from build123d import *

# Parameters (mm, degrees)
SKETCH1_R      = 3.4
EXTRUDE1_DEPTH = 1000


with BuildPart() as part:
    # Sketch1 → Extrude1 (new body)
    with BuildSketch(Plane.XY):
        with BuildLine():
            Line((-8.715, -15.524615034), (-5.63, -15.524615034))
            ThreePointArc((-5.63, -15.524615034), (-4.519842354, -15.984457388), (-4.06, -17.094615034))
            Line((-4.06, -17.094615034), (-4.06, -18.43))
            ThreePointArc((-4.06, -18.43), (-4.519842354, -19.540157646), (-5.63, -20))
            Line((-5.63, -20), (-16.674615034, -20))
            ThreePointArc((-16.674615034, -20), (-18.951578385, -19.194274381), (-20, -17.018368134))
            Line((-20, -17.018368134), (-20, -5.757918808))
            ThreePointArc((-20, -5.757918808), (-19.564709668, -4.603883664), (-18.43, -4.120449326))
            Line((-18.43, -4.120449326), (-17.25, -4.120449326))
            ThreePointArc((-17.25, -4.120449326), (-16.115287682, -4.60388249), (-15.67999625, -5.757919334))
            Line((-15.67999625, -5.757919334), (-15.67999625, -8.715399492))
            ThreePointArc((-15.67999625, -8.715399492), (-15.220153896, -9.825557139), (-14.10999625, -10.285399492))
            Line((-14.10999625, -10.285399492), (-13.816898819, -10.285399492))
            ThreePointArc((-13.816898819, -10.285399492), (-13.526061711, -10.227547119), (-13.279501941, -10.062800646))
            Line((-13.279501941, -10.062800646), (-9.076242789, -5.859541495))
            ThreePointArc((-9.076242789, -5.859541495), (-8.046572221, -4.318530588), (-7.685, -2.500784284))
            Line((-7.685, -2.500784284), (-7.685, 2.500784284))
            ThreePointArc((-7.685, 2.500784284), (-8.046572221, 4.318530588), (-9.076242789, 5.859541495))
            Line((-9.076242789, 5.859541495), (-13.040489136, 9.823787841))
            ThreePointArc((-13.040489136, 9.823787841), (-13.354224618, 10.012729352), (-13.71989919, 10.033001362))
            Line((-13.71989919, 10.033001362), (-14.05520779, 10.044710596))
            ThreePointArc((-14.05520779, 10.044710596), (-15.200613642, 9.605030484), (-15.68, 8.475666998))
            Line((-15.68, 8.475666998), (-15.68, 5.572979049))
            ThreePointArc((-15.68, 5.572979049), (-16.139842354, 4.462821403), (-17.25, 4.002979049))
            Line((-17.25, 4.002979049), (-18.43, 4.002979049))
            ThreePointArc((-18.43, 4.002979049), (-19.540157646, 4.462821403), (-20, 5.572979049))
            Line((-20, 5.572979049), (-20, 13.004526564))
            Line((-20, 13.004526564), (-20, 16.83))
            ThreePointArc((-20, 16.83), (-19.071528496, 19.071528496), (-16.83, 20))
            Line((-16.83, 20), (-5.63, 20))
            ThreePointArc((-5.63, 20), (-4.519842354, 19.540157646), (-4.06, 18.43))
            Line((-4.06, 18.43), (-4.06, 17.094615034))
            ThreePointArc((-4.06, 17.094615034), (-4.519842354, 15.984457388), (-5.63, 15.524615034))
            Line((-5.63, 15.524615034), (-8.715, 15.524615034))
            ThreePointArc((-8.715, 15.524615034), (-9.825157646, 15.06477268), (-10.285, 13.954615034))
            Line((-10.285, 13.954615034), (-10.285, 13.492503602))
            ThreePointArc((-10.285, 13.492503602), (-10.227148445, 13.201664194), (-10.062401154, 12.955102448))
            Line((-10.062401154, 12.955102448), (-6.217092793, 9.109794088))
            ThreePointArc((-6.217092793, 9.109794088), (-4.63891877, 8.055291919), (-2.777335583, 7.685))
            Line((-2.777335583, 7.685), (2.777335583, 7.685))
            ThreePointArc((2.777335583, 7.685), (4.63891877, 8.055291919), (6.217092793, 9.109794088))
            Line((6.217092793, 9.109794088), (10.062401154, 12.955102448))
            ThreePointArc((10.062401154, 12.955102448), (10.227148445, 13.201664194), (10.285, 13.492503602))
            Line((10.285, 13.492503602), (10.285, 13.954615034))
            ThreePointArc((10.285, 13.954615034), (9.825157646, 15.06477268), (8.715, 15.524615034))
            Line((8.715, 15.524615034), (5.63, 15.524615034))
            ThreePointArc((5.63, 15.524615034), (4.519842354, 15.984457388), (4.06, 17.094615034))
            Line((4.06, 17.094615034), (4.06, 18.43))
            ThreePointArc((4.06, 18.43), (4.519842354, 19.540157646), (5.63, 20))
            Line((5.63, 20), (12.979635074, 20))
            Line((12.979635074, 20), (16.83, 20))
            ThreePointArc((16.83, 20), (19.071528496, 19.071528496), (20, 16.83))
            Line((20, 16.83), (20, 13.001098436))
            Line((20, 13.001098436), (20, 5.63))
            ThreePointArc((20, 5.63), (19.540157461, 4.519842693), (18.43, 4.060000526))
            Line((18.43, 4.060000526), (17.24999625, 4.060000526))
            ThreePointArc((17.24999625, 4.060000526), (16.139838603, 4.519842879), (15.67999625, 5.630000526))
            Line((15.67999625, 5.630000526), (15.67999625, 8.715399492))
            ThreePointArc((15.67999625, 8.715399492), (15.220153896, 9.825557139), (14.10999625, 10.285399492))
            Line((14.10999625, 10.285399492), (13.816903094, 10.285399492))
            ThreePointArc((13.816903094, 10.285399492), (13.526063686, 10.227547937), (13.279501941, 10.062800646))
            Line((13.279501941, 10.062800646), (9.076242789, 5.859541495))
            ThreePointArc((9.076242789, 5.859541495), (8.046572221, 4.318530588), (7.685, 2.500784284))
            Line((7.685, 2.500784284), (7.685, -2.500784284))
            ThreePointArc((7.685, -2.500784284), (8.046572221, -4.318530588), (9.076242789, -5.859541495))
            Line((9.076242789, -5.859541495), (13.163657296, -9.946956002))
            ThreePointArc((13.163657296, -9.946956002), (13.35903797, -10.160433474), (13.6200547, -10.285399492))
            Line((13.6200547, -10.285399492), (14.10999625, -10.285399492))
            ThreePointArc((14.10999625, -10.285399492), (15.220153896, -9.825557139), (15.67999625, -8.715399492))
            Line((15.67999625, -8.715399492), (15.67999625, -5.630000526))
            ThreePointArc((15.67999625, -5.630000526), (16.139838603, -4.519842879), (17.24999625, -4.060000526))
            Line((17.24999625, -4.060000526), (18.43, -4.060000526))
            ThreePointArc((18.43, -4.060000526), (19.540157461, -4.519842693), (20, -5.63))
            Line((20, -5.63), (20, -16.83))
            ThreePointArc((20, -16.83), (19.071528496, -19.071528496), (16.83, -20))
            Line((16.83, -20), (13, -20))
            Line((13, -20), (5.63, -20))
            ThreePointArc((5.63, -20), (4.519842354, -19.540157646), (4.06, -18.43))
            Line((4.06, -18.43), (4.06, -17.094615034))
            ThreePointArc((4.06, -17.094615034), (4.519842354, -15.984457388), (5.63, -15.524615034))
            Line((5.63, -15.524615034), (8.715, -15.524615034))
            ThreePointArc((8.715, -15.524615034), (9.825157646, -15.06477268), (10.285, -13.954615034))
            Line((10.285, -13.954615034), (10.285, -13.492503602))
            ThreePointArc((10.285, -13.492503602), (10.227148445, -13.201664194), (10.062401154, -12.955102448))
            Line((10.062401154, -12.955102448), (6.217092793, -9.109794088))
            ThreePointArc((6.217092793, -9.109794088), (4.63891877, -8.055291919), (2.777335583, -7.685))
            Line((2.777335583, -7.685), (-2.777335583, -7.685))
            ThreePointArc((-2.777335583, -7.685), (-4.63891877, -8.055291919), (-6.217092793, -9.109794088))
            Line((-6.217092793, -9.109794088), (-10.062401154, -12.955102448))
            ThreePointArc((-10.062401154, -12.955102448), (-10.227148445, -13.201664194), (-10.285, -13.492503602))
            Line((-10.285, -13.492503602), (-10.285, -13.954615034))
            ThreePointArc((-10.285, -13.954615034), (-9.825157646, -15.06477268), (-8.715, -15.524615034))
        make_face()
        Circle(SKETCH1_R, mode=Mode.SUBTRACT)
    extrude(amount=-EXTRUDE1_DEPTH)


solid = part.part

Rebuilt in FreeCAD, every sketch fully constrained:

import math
import FreeCAD as App
import Part
import Sketcher

V = App.Vector
Q = App.Units.Quantity

doc = App.newDocument("Part")
body = doc.addObject("PartDesign::Body", "Body")

# Sketch on XY plane
sketch1 = body.newObject("Sketcher::SketchObject", "Sketch")
sketch1.AttachmentSupport = (doc.getObject("XY_Plane"), [""])
sketch1.MapMode = "FlatFace"
sketch1.addGeometry(Part.LineSegment(V(-5.63, -15.524615, 0), V(-8.715, -15.524615, 0)), False)
sketch1.addGeometry(Part.ArcOfCircle(Part.Circle(V(-8.715, -13.954615, 0), V(0, 0, 1), 1.57), math.radians(-180), math.radians(-90)), False)
sketch1.addGeometry(Part.LineSegment(V(-10.285, -13.954615, 0), V(-10.285, -13.492504, 0)), False)
sketch1.addGeometry(Part.ArcOfCircle(Part.Circle(V(-9.525, -13.492504, 0), V(0, 0, 1), 0.76), math.radians(135), math.radians(180)), False)
sketch1.addGeometry(Part.LineSegment(V(-10.062401, -12.955102, 0), V(-6.217093, -9.109794, 0)), False)
sketch1.addGeometry(Part.ArcOfCircle(Part.Circle(V(-2.777336, -12.549551, 0), V(0, 0, 1), 4.864551), math.radians(90), math.radians(135)), False)
sketch1.addGeometry(Part.LineSegment(V(-2.777336, -7.685, 0), V(2.777336, -7.685, 0)), False)
sketch1.addGeometry(Part.ArcOfCircle(Part.Circle(V(2.777336, -12.549551, 0), V(0, 0, 1), 4.864551), math.radians(45), math.radians(90)), False)
sketch1.addGeometry(Part.LineSegment(V(6.217093, -9.109794, 0), V(10.062401, -12.955102, 0)), False)
sketch1.addGeometry(Part.ArcOfCircle(Part.Circle(V(9.525, -13.492504, 0), V(0, 0, 1), 0.76), math.radians(0), math.radians(45)), False)
sketch1.addGeometry(Part.LineSegment(V(10.285, -13.492504, 0), V(10.285, -13.954615, 0)), False)
sketch1.addGeometry(Part.ArcOfCircle(Part.Circle(V(8.715, -13.954615, 0), V(0, 0, 1), 1.57), math.radians(-90), math.radians(0)), False)
sketch1.addGeometry(Part.LineSegment(V(8.715, -15.524615, 0), V(5.63, -15.524615, 0)), False)
sketch1.addGeometry(Part.ArcOfCircle(Part.Circle(V(5.63, -17.094615, 0), V(0, 0, 1), 1.57), math.radians(90), math.radians(180)), False)
sketch1.addGeometry(Part.LineSegment(V(4.06, -17.094615, 0), V(4.06, -18.43, 0)), False)
sketch1.addGeometry(Part.ArcOfCircle(Part.Circle(V(5.63, -18.43, 0), V(0, 0, 1), 1.57), math.radians(-180), math.radians(-90)), False)
sketch1.addGeometry(Part.LineSegment(V(5.63, -20, 0), V(16.83, -20, 0)), False)
sketch1.addGeometry(Part.ArcOfCircle(Part.Circle(V(16.83, -16.83, 0), V(0, 0, 1), 3.17), math.radians(-90), math.radians(0)), False)
sketch1.addGeometry(Part.LineSegment(V(20, -16.83, 0), V(20, -5.63, 0)), False)
sketch1.addGeometry(Part.ArcOfCircle(Part.Circle(V(18.43, -5.630001, 0), V(0, 0, 1), 1.57), math.radians(0.000019), math.radians(90)), False)
sketch1.addGeometry(Part.LineSegment(V(18.43, -4.060001, 0), V(17.249996, -4.060001, 0)), False)
sketch1.addGeometry(Part.ArcOfCircle(Part.Circle(V(17.249996, -5.630001, 0), V(0, 0, 1), 1.57), math.radians(90), math.radians(180)), False)
sketch1.addGeometry(Part.LineSegment(V(15.679996, -5.630001, 0), V(15.679996, -8.715399, 0)), False)
sketch1.addGeometry(Part.ArcOfCircle(Part.Circle(V(14.109996, -8.715399, 0), V(0, 0, 1), 1.57), math.radians(-90), math.radians(0)), False)
sketch1.addGeometry(Part.LineSegment(V(14.109996, -10.285399, 0), V(13.620055, -10.285399, 0)), False)
sketch1.addGeometry(Part.ArcOfCircle(Part.Circle(V(13.811732, -9.549968, 0), V(0, 0, 1), 0.76), math.radians(-148.509776), math.radians(-104.608114)), False)
sketch1.addGeometry(Part.LineSegment(V(13.163657, -9.946956, 0), V(9.076243, -5.859541, 0)), False)
sketch1.addGeometry(Part.ArcOfCircle(Part.Circle(V(12.435, -2.500784, 0), V(0, 0, 1), 4.75), math.radians(-180), math.radians(-135)), False)
sketch1.addGeometry(Part.LineSegment(V(7.685, -2.500784, 0), V(7.685, 2.500784, 0)), False)
sketch1.addGeometry(Part.ArcOfCircle(Part.Circle(V(12.435, 2.500784, 0), V(0, 0, 1), 4.75), math.radians(135), math.radians(180)), False)
sketch1.addGeometry(Part.LineSegment(V(9.076243, 5.859541, 0), V(13.279502, 10.062801, 0)), False)
sketch1.addGeometry(Part.ArcOfCircle(Part.Circle(V(13.816903, 9.525399, 0), V(0, 0, 1), 0.76), math.radians(90), math.radians(135)), False)
sketch1.addGeometry(Part.LineSegment(V(13.816903, 10.285399, 0), V(14.109996, 10.285399, 0)), False)
sketch1.addGeometry(Part.ArcOfCircle(Part.Circle(V(14.109996, 8.715399, 0), V(0, 0, 1), 1.57), math.radians(0), math.radians(90)), False)
sketch1.addGeometry(Part.LineSegment(V(15.679996, 8.715399, 0), V(15.679996, 5.630001, 0)), False)
sketch1.addGeometry(Part.ArcOfCircle(Part.Circle(V(17.249996, 5.630001, 0), V(0, 0, 1), 1.57), math.radians(180), math.radians(270)), False)
sketch1.addGeometry(Part.LineSegment(V(17.249996, 4.060001, 0), V(18.43, 4.060001, 0)), False)
sketch1.addGeometry(Part.ArcOfCircle(Part.Circle(V(18.43, 5.630001, 0), V(0, 0, 1), 1.57), math.radians(-90), math.radians(-0.000019)), False)
sketch1.addGeometry(Part.LineSegment(V(20, 5.63, 0), V(20, 16.83, 0)), False)
sketch1.addGeometry(Part.ArcOfCircle(Part.Circle(V(16.83, 16.83, 0), V(0, 0, 1), 3.17), math.radians(0), math.radians(90)), False)
sketch1.addGeometry(Part.LineSegment(V(16.83, 20, 0), V(5.63, 20, 0)), False)
sketch1.addGeometry(Part.ArcOfCircle(Part.Circle(V(5.63, 18.43, 0), V(0, 0, 1), 1.57), math.radians(90), math.radians(180)), False)
sketch1.addGeometry(Part.LineSegment(V(4.06, 18.43, 0), V(4.06, 17.094615, 0)), False)
sketch1.addGeometry(Part.ArcOfCircle(Part.Circle(V(5.63, 17.094615, 0), V(0, 0, 1), 1.57), math.radians(-180), math.radians(-90)), False)
sketch1.addGeometry(Part.LineSegment(V(5.63, 15.524615, 0), V(8.715, 15.524615, 0)), False)
sketch1.addGeometry(Part.ArcOfCircle(Part.Circle(V(8.715, 13.954615, 0), V(0, 0, 1), 1.57), math.radians(0), math.radians(90)), False)
sketch1.addGeometry(Part.LineSegment(V(10.285, 13.954615, 0), V(10.285, 13.492504, 0)), False)
sketch1.addGeometry(Part.ArcOfCircle(Part.Circle(V(9.525, 13.492504, 0), V(0, 0, 1), 0.76), math.radians(-45), math.radians(0)), False)
sketch1.addGeometry(Part.LineSegment(V(10.062401, 12.955102, 0), V(6.217093, 9.109794, 0)), False)
sketch1.addGeometry(Part.ArcOfCircle(Part.Circle(V(2.777336, 12.549551, 0), V(0, 0, 1), 4.864551), math.radians(-90), math.radians(-45)), False)
sketch1.addGeometry(Part.LineSegment(V(2.777336, 7.685, 0), V(-2.777336, 7.685, 0)), False)
sketch1.addGeometry(Part.ArcOfCircle(Part.Circle(V(-2.777336, 12.549551, 0), V(0, 0, 1), 4.864551), math.radians(-135), math.radians(-90)), False)
sketch1.addGeometry(Part.LineSegment(V(-6.217093, 9.109794, 0), V(-10.062401, 12.955102, 0)), False)
sketch1.addGeometry(Part.ArcOfCircle(Part.Circle(V(-9.525, 13.492504, 0), V(0, 0, 1), 0.76), math.radians(180), math.radians(225)), False)
sketch1.addGeometry(Part.LineSegment(V(-10.285, 13.492504, 0), V(-10.285, 13.954615, 0)), False)
sketch1.addGeometry(Part.ArcOfCircle(Part.Circle(V(-8.715, 13.954615, 0), V(0, 0, 1), 1.57), math.radians(90), math.radians(180)), False)
sketch1.addGeometry(Part.LineSegment(V(-8.715, 15.524615, 0), V(-5.63, 15.524615, 0)), False)
sketch1.addGeometry(Part.ArcOfCircle(Part.Circle(V(-5.63, 17.094615, 0), V(0, 0, 1), 1.57), math.radians(-90), math.radians(0)), False)
sketch1.addGeometry(Part.LineSegment(V(-4.06, 17.094615, 0), V(-4.06, 18.43, 0)), False)
sketch1.addGeometry(Part.ArcOfCircle(Part.Circle(V(-5.63, 18.43, 0), V(0, 0, 1), 1.57), math.radians(0), math.radians(90)), False)
sketch1.addGeometry(Part.LineSegment(V(-5.63, 20, 0), V(-16.83, 20, 0)), False)
sketch1.addGeometry(Part.ArcOfCircle(Part.Circle(V(-16.83, 16.83, 0), V(0, 0, 1), 3.17), math.radians(90), math.radians(180)), False)
sketch1.addGeometry(Part.LineSegment(V(-20, 16.83, 0), V(-20, 5.572979, 0)), False)
sketch1.addGeometry(Part.ArcOfCircle(Part.Circle(V(-18.43, 5.572979, 0), V(0, 0, 1), 1.57), math.radians(-180), math.radians(-90)), False)
sketch1.addGeometry(Part.LineSegment(V(-18.43, 4.002979, 0), V(-17.25, 4.002979, 0)), False)
sketch1.addGeometry(Part.ArcOfCircle(Part.Circle(V(-17.25, 5.572979, 0), V(0, 0, 1), 1.57), math.radians(-90), math.radians(0)), False)
sketch1.addGeometry(Part.LineSegment(V(-15.68, 5.572979, 0), V(-15.68, 8.475667, 0)), False)
sketch1.addGeometry(Part.ArcOfCircle(Part.Circle(V(-14.11, 8.475667, 0), V(0, 0, 1), 1.57), math.radians(88), math.radians(180)), False)
sketch1.addGeometry(Part.LineSegment(V(-14.055208, 10.044711, 0), V(-13.719899, 10.033001, 0)), False)
sketch1.addGeometry(Part.ArcOfCircle(Part.Circle(V(-13.57789, 9.286387, 0), V(0, 0, 1), 0.76), math.radians(45), math.radians(100.769233)), False)
sketch1.addGeometry(Part.LineSegment(V(-13.040489, 9.823788, 0), V(-9.076243, 5.859541, 0)), False)
sketch1.addGeometry(Part.ArcOfCircle(Part.Circle(V(-12.435, 2.500784, 0), V(0, 0, 1), 4.75), math.radians(0), math.radians(45)), False)
sketch1.addGeometry(Part.LineSegment(V(-7.685, 2.500784, 0), V(-7.685, -2.500784, 0)), False)
sketch1.addGeometry(Part.ArcOfCircle(Part.Circle(V(-12.435, -2.500784, 0), V(0, 0, 1), 4.75), math.radians(-45), math.radians(0)), False)
sketch1.addGeometry(Part.LineSegment(V(-9.076243, -5.859541, 0), V(-13.279502, -10.062801, 0)), False)
sketch1.addGeometry(Part.ArcOfCircle(Part.Circle(V(-13.816903, -9.525399, 0), V(0, 0, 1), 0.76), math.radians(-89.999678), math.radians(-45)), False)
sketch1.addGeometry(Part.LineSegment(V(-13.816899, -10.285399, 0), V(-14.109996, -10.285399, 0)), False)
sketch1.addGeometry(Part.ArcOfCircle(Part.Circle(V(-14.109996, -8.715399, 0), V(0, 0, 1), 1.57), math.radians(180), math.radians(270)), False)
sketch1.addGeometry(Part.LineSegment(V(-15.679996, -8.715399, 0), V(-15.679996, -5.757919, 0)), False)
sketch1.addGeometry(Part.ArcOfCircle(Part.Circle(V(-17.248546, -5.690449, 0), V(0, 0, 1), 1.57), math.radians(-2.463042), math.radians(90.05307)), False)
sketch1.addGeometry(Part.LineSegment(V(-17.25, -4.120449, 0), V(-18.43, -4.120449, 0)), False)
sketch1.addGeometry(Part.ArcOfCircle(Part.Circle(V(-18.43145, -5.690449, 0), V(0, 0, 1), 1.57), math.radians(89.947068), math.radians(182.463023)), False)
sketch1.addGeometry(Part.LineSegment(V(-20, -5.757919, 0), V(-20, -17.018368, 0)), False)
sketch1.addGeometry(Part.ArcOfCircle(Part.Circle(V(-16.835361, -16.834078, 0), V(0, 0, 1), 3.17), math.radians(-176.667196), math.radians(-87.093362)), False)
sketch1.addGeometry(Part.LineSegment(V(-16.674615, -20, 0), V(-5.63, -20, 0)), False)
sketch1.addGeometry(Part.ArcOfCircle(Part.Circle(V(-5.63, -18.43, 0), V(0, 0, 1), 1.57), math.radians(-90), math.radians(0)), False)
sketch1.addGeometry(Part.LineSegment(V(-4.06, -18.43, 0), V(-4.06, -17.094615, 0)), False)
sketch1.addGeometry(Part.ArcOfCircle(Part.Circle(V(-5.63, -17.094615, 0), V(0, 0, 1), 1.57), math.radians(0), math.radians(90)), False)
sketch1.addGeometry(Part.Circle(V(0, 0, 0), V(0, 0, 1), 3.4), False)
sketch1.addConstraint(Sketcher.Constraint("Tangent", 0, 2, 1, 2))
sketch1.addConstraint(Sketcher.Constraint("Tangent", 1, 1, 2, 1))
sketch1.addConstraint(Sketcher.Constraint("Tangent", 2, 2, 3, 2))
sketch1.addConstraint(Sketcher.Constraint("Tangent", 3, 1, 4, 1))
sketch1.addConstraint(Sketcher.Constraint("Tangent", 4, 2, 5, 2))
sketch1.addConstraint(Sketcher.Constraint("Tangent", 5, 1, 6, 1))
sketch1.addConstraint(Sketcher.Constraint("Tangent", 6, 2, 7, 2))
sketch1.addConstraint(Sketcher.Constraint("Tangent", 7, 1, 8, 1))
sketch1.addConstraint(Sketcher.Constraint("Tangent", 8, 2, 9, 2))
sketch1.addConstraint(Sketcher.Constraint("Tangent", 9, 1, 10, 1))
sketch1.addConstraint(Sketcher.Constraint("Tangent", 10, 2, 11, 2))
sketch1.addConstraint(Sketcher.Constraint("Tangent", 11, 1, 12, 1))
sketch1.addConstraint(Sketcher.Constraint("Tangent", 12, 2, 13, 1))
sketch1.addConstraint(Sketcher.Constraint("Tangent", 13, 2, 14, 1))
sketch1.addConstraint(Sketcher.Constraint("Tangent", 14, 2, 15, 1))
sketch1.addConstraint(Sketcher.Constraint("Tangent", 15, 2, 16, 1))
sketch1.addConstraint(Sketcher.Constraint("Tangent", 16, 2, 17, 1))
sketch1.addConstraint(Sketcher.Constraint("Tangent", 17, 2, 18, 1))
sketch1.addConstraint(Sketcher.Constraint("Tangent", 18, 2, 19, 1))
sketch1.addConstraint(Sketcher.Constraint("Tangent", 19, 2, 20, 1))
sketch1.addConstraint(Sketcher.Constraint("Tangent", 20, 2, 21, 1))
sketch1.addConstraint(Sketcher.Constraint("Tangent", 21, 2, 22, 1))
sketch1.addConstraint(Sketcher.Constraint("Tangent", 22, 2, 23, 2))
sketch1.addConstraint(Sketcher.Constraint("Tangent", 23, 1, 24, 1))
sketch1.addConstraint(Sketcher.Constraint("Coincident", 24, 2, 25, 2))
sketch1.addConstraint(Sketcher.Constraint("Coincident", 25, 1, 26, 1))
sketch1.addConstraint(Sketcher.Constraint("Tangent", 26, 2, 27, 2))
sketch1.addConstraint(Sketcher.Constraint("Tangent", 27, 1, 28, 1))
sketch1.addConstraint(Sketcher.Constraint("Tangent", 28, 2, 29, 2))
sketch1.addConstraint(Sketcher.Constraint("Tangent", 29, 1, 30, 1))
sketch1.addConstraint(Sketcher.Constraint("Tangent", 30, 2, 31, 2))
sketch1.addConstraint(Sketcher.Constraint("Tangent", 31, 1, 32, 1))
sketch1.addConstraint(Sketcher.Constraint("Tangent", 32, 2, 33, 2))
sketch1.addConstraint(Sketcher.Constraint("Tangent", 33, 1, 34, 1))
sketch1.addConstraint(Sketcher.Constraint("Tangent", 34, 2, 35, 1))
sketch1.addConstraint(Sketcher.Constraint("Tangent", 35, 2, 36, 1))
sketch1.addConstraint(Sketcher.Constraint("Tangent", 36, 2, 37, 1))
sketch1.addConstraint(Sketcher.Constraint("Tangent", 37, 2, 38, 1))
sketch1.addConstraint(Sketcher.Constraint("Tangent", 38, 2, 39, 1))
sketch1.addConstraint(Sketcher.Constraint("Tangent", 39, 2, 40, 1))
sketch1.addConstraint(Sketcher.Constraint("Tangent", 40, 2, 41, 1))
sketch1.addConstraint(Sketcher.Constraint("Tangent", 41, 2, 42, 1))
sketch1.addConstraint(Sketcher.Constraint("Tangent", 42, 2, 43, 1))
sketch1.addConstraint(Sketcher.Constraint("Tangent", 43, 2, 44, 1))
sketch1.addConstraint(Sketcher.Constraint("Tangent", 44, 2, 45, 2))
sketch1.addConstraint(Sketcher.Constraint("Tangent", 45, 1, 46, 1))
sketch1.addConstraint(Sketcher.Constraint("Tangent", 46, 2, 47, 2))
sketch1.addConstraint(Sketcher.Constraint("Tangent", 47, 1, 48, 1))
sketch1.addConstraint(Sketcher.Constraint("Tangent", 48, 2, 49, 2))
sketch1.addConstraint(Sketcher.Constraint("Tangent", 49, 1, 50, 1))
sketch1.addConstraint(Sketcher.Constraint("Tangent", 50, 2, 51, 2))
sketch1.addConstraint(Sketcher.Constraint("Tangent", 51, 1, 52, 1))
sketch1.addConstraint(Sketcher.Constraint("Tangent", 52, 2, 53, 2))
sketch1.addConstraint(Sketcher.Constraint("Tangent", 53, 1, 54, 1))
sketch1.addConstraint(Sketcher.Constraint("Tangent", 54, 2, 55, 2))
sketch1.addConstraint(Sketcher.Constraint("Tangent", 55, 1, 56, 1))
sketch1.addConstraint(Sketcher.Constraint("Tangent", 56, 2, 57, 1))
sketch1.addConstraint(Sketcher.Constraint("Tangent", 57, 2, 58, 1))
sketch1.addConstraint(Sketcher.Constraint("Tangent", 58, 2, 59, 1))
sketch1.addConstraint(Sketcher.Constraint("Tangent", 59, 2, 60, 1))
sketch1.addConstraint(Sketcher.Constraint("Tangent", 60, 2, 61, 1))
sketch1.addConstraint(Sketcher.Constraint("Tangent", 61, 2, 62, 1))
sketch1.addConstraint(Sketcher.Constraint("Tangent", 62, 2, 63, 1))
sketch1.addConstraint(Sketcher.Constraint("Tangent", 63, 2, 64, 1))
sketch1.addConstraint(Sketcher.Constraint("Tangent", 64, 2, 65, 1))
sketch1.addConstraint(Sketcher.Constraint("Tangent", 65, 2, 66, 1))
sketch1.addConstraint(Sketcher.Constraint("Tangent", 66, 2, 67, 2))
sketch1.addConstraint(Sketcher.Constraint("Tangent", 67, 1, 68, 1))
sketch1.addConstraint(Sketcher.Constraint("Coincident", 68, 2, 69, 2))
sketch1.addConstraint(Sketcher.Constraint("Tangent", 69, 1, 70, 1))
sketch1.addConstraint(Sketcher.Constraint("Tangent", 70, 2, 71, 2))
sketch1.addConstraint(Sketcher.Constraint("Tangent", 71, 1, 72, 1))
sketch1.addConstraint(Sketcher.Constraint("Tangent", 72, 2, 73, 2))
sketch1.addConstraint(Sketcher.Constraint("Tangent", 73, 1, 74, 1))
sketch1.addConstraint(Sketcher.Constraint("Tangent", 74, 2, 75, 2))
sketch1.addConstraint(Sketcher.Constraint("Coincident", 75, 1, 76, 1))
sketch1.addConstraint(Sketcher.Constraint("Tangent", 76, 2, 77, 2))
sketch1.addConstraint(Sketcher.Constraint("Tangent", 77, 1, 78, 1))
sketch1.addConstraint(Sketcher.Constraint("Coincident", 78, 2, 79, 1))
sketch1.addConstraint(Sketcher.Constraint("Coincident", 79, 2, 80, 1))
sketch1.addConstraint(Sketcher.Constraint("Coincident", 80, 2, 81, 1))
sketch1.addConstraint(Sketcher.Constraint("Coincident", 81, 2, 82, 1))
sketch1.addConstraint(Sketcher.Constraint("Coincident", 82, 2, 83, 1))
sketch1.addConstraint(Sketcher.Constraint("Coincident", 83, 2, 84, 1))
sketch1.addConstraint(Sketcher.Constraint("Tangent", 84, 2, 85, 1))
sketch1.addConstraint(Sketcher.Constraint("Tangent", 85, 2, 86, 1))
sketch1.addConstraint(Sketcher.Constraint("Tangent", 86, 2, 87, 1))
sketch1.addConstraint(Sketcher.Constraint("Tangent", 87, 2, 0, 1))
sketch1.addConstraint(Sketcher.Constraint("Horizontal", 0))
sketch1.addConstraint(Sketcher.Constraint("Vertical", 2))
sketch1.addConstraint(Sketcher.Constraint("Horizontal", 6))
sketch1.addConstraint(Sketcher.Constraint("Vertical", 10))
sketch1.addConstraint(Sketcher.Constraint("Horizontal", 12))
sketch1.addConstraint(Sketcher.Constraint("Vertical", 14))
sketch1.addConstraint(Sketcher.Constraint("Horizontal", 16))
sketch1.addConstraint(Sketcher.Constraint("Vertical", 18))
sketch1.addConstraint(Sketcher.Constraint("Horizontal", 20))
sketch1.addConstraint(Sketcher.Constraint("Vertical", 22))
sketch1.addConstraint(Sketcher.Constraint("Horizontal", 24))
sketch1.addConstraint(Sketcher.Constraint("Vertical", 28))
sketch1.addConstraint(Sketcher.Constraint("Horizontal", 32))
sketch1.addConstraint(Sketcher.Constraint("Vertical", 34))
sketch1.addConstraint(Sketcher.Constraint("Horizontal", 36))
sketch1.addConstraint(Sketcher.Constraint("Vertical", 38))
sketch1.addConstraint(Sketcher.Constraint("Horizontal", 40))
sketch1.addConstraint(Sketcher.Constraint("Vertical", 42))
sketch1.addConstraint(Sketcher.Constraint("Horizontal", 44))
sketch1.addConstraint(Sketcher.Constraint("Vertical", 46))
sketch1.addConstraint(Sketcher.Constraint("Horizontal", 50))
sketch1.addConstraint(Sketcher.Constraint("Vertical", 54))
sketch1.addConstraint(Sketcher.Constraint("Horizontal", 56))
sketch1.addConstraint(Sketcher.Constraint("Vertical", 58))
sketch1.addConstraint(Sketcher.Constraint("Horizontal", 60))
sketch1.addConstraint(Sketcher.Constraint("Vertical", 62))
sketch1.addConstraint(Sketcher.Constraint("Horizontal", 64))
sketch1.addConstraint(Sketcher.Constraint("Vertical", 66))
sketch1.addConstraint(Sketcher.Constraint("Vertical", 72))
sketch1.addConstraint(Sketcher.Constraint("Horizontal", 76))
sketch1.addConstraint(Sketcher.Constraint("Vertical", 78))
sketch1.addConstraint(Sketcher.Constraint("Horizontal", 80))
sketch1.addConstraint(Sketcher.Constraint("Vertical", 82))
sketch1.addConstraint(Sketcher.Constraint("Horizontal", 84))
sketch1.addConstraint(Sketcher.Constraint("Vertical", 86))
sketch1.addConstraint(Sketcher.Constraint("Coincident", 88, 3, -1, 1))
sketch1.addConstraint(Sketcher.Constraint("Equal", 5, 7))
sketch1.addConstraint(Sketcher.Constraint("Equal", 3, 9))
sketch1.addConstraint(Sketcher.Constraint("Equal", 1, 11))
sketch1.addConstraint(Sketcher.Constraint("Equal", 11, 13))
sketch1.addConstraint(Sketcher.Constraint("Equal", 13, 15))
sketch1.addConstraint(Sketcher.Constraint("Equal", 15, 19))
sketch1.addConstraint(Sketcher.Constraint("Equal", 19, 21))
sketch1.addConstraint(Sketcher.Constraint("Equal", 21, 23))
sketch1.addConstraint(Sketcher.Constraint("Equal", 9, 25))
sketch1.addConstraint(Sketcher.Constraint("Equal", 27, 29))
sketch1.addConstraint(Sketcher.Constraint("Equal", 25, 31))
sketch1.addConstraint(Sketcher.Constraint("Equal", 23, 33))
sketch1.addConstraint(Sketcher.Constraint("Equal", 33, 35))
sketch1.addConstraint(Sketcher.Constraint("Equal", 35, 37))
sketch1.addConstraint(Sketcher.Constraint("Equal", 17, 39))
sketch1.addConstraint(Sketcher.Constraint("Equal", 37, 41))
sketch1.addConstraint(Sketcher.Constraint("Equal", 41, 43))
sketch1.addConstraint(Sketcher.Constraint("Equal", 43, 45))
sketch1.addConstraint(Sketcher.Constraint("Equal", 31, 47))
sketch1.addConstraint(Sketcher.Constraint("Equal", 7, 49))
sketch1.addConstraint(Sketcher.Constraint("Equal", 49, 51))
sketch1.addConstraint(Sketcher.Constraint("Equal", 47, 53))
sketch1.addConstraint(Sketcher.Constraint("Equal", 45, 55))
sketch1.addConstraint(Sketcher.Constraint("Equal", 55, 57))
sketch1.addConstraint(Sketcher.Constraint("Equal", 57, 59))
sketch1.addConstraint(Sketcher.Constraint("Equal", 39, 61))
sketch1.addConstraint(Sketcher.Constraint("Equal", 59, 63))
sketch1.addConstraint(Sketcher.Constraint("Equal", 63, 65))
sketch1.addConstraint(Sketcher.Constraint("Equal", 65, 67))
sketch1.addConstraint(Sketcher.Constraint("Equal", 53, 69))
sketch1.addConstraint(Sketcher.Constraint("Equal", 29, 71))
sketch1.addConstraint(Sketcher.Constraint("Equal", 71, 73))
sketch1.addConstraint(Sketcher.Constraint("Equal", 69, 75))
sketch1.addConstraint(Sketcher.Constraint("Equal", 67, 77))
sketch1.addConstraint(Sketcher.Constraint("Equal", 77, 79))
sketch1.addConstraint(Sketcher.Constraint("Equal", 79, 81))
sketch1.addConstraint(Sketcher.Constraint("Equal", 61, 83))
sketch1.addConstraint(Sketcher.Constraint("Equal", 81, 85))
sketch1.addConstraint(Sketcher.Constraint("Equal", 85, 87))
sketch1.addConstraint(Sketcher.Constraint("Symmetric", 1, 3, 45, 3, -1, 1))
sketch1.addConstraint(Sketcher.Constraint("Symmetric", 5, 3, 49, 3, -1, 1))
sketch1.addConstraint(Sketcher.Constraint("Symmetric", 9, 3, 53, 3, -1, 1))
sketch1.addConstraint(Sketcher.Constraint("Symmetric", 13, 3, 57, 3, -1, 1))
sketch1.addConstraint(Sketcher.Constraint("Symmetric", 17, 3, 61, 3, -1, 1))
sketch1.addConstraint(Sketcher.Constraint("Symmetric", 27, 3, 71, 3, -1, 1))
sketch1.addConstraint(Sketcher.Constraint("Symmetric", 31, 3, 75, 3, -1, 1))
sketch1.addConstraint(Sketcher.Constraint("Symmetric", 41, 3, 85, 3, -1, 1))
sketch1.addConstraint(Sketcher.Constraint("Symmetric", 3, 3, 9, 3, -2))
sketch1.addConstraint(Sketcher.Constraint("Symmetric", 43, 3, 57, 3, -2))
sketch1.addConstraint(Sketcher.Constraint("Symmetric", 39, 3, 61, 3, -2))
sketch1.addConstraint(Sketcher.Constraint("Symmetric", 23, 3, 77, 3, -2))
sketch1.addConstraint(Sketcher.Constraint("Symmetric", 48, 2, 51, 1, -2))
sketch1.addConstraint(Sketcher.Constraint("Symmetric", 29, 1, 70, 2, -2))
sketch1.addConstraint(Sketcher.Constraint("Symmetric", 26, 2, 73, 1, -2))
sketch1.addConstraint(Sketcher.Constraint("Symmetric", 21, 3, 35, 3, -1))
sketch1.addConstraint(Sketcher.Constraint("Perpendicular", 4, 8))
sketch1.addConstraint(Sketcher.Constraint("Parallel", 8, 26))
sketch1.addConstraint(Sketcher.Constraint("Perpendicular", 26, 30))
sketch1.addConstraint(Sketcher.Constraint("Horizontal", 78, 2, 81, 2))
sketch1.addConstraint(Sketcher.Constraint("Vertical", 64, 2, 79, 2))
sketch1.addConstraint(Sketcher.Constraint("Vertical", 63, 2, 80, 2))
sketch1.addConstraint(Sketcher.Constraint("Vertical", 62, 2, 81, 2))
sketch1.addConstraint(Sketcher.Constraint("Equal", 60, 18))
sketch1.addConstraint(Sketcher.Constraint("Diameter", 88, 6.8))
sketch1.addConstraint(Sketcher.Constraint("Angle", 68, Q("-2 deg")))
sketch1.addConstraint(Sketcher.Constraint("Radius", 1, 1.57))
sketch1.addConstraint(Sketcher.Constraint("Radius", 3, 0.76))
sketch1.addConstraint(Sketcher.Constraint("Radius", 17, 3.17))
sketch1.addConstraint(Sketcher.Constraint("Radius", 27, 4.75))
sketch1.addConstraint(Sketcher.Constraint("DistanceX", 16, 1, 16, 2, 11.2))
sketch1.addConstraint(Sketcher.Constraint("DistanceY", 15, 2, -1, 1, 20.0))
sketch1.addConstraint(Sketcher.Constraint("DistanceX", -1, 1, 17, 2, 20.0))
sketch1.addConstraint(Sketcher.Constraint("DistanceX", 64, 1, 64, 2, 1.18))
sketch1.addConstraint(Sketcher.Constraint("DistanceX", 0, 2, 0, 1, 3.085))
sketch1.addConstraint(Sketcher.Constraint("Radius", 5, 4.864551))
sketch1.addConstraint(Sketcher.Constraint("DistanceY", 22, 2, 22, 1, 3.085399))
sketch1.addConstraint(Sketcher.Constraint("DistanceX", -1, 1, 27, 3, 12.435))
sketch1.addConstraint(Sketcher.Constraint("DistanceY", 5, 1, -1, 1, 7.685))
sketch1.addConstraint(Sketcher.Constraint("DistanceY", -1, 1, 68, 2, 10.033001))
sketch1.addConstraint(Sketcher.Constraint("DistanceX", 6, 1, 6, 2, 5.554671))
sketch1.addConstraint(Sketcher.Constraint("DistanceX", 24, 2, 24, 1, 0.489942))
sketch1.addConstraint(Sketcher.Constraint("DistanceY", 2, 1, 2, 2, 0.462111))
sketch1.addConstraint(Sketcher.Constraint("DistanceY", 28, 1, 28, 2, 5.001569))
sketch1.addConstraint(Sketcher.Constraint("DistanceY", 62, 2, 62, 1, 11.257021))
sketch1.addConstraint(Sketcher.Constraint("DistanceY", 78, 1, 78, 2, 2.95748))
sketch1.addConstraint(Sketcher.Constraint("DistanceY", 82, 2, 82, 1, 11.260449))
sketch1.addConstraint(Sketcher.Constraint("DistanceX", 68, 2, -1, 1, 13.719899))
sketch1.addConstraint(Sketcher.Constraint("DistanceX", 75, 1, -1, 1, 13.816899))
sketch1.addConstraint(Sketcher.Constraint("DistanceX", 20, 2, 20, 1, 1.180004))
sketch1.addConstraint(Sketcher.Constraint("DistanceX", 84, 1, 84, 2, 11.044615))
sketch1.addConstraint(Sketcher.Constraint("DistanceX", -1, 1, 25, 3, 13.811732))
sketch1.addConstraint(Sketcher.Constraint("DistanceY", 79, 3, -1, 1, 5.690449))
pad1 = body.newObject("PartDesign::Pad", "Pad")
pad1.Profile = sketch1
pad1.Length = 1000
pad1.Reversed = True

doc.recompute()
